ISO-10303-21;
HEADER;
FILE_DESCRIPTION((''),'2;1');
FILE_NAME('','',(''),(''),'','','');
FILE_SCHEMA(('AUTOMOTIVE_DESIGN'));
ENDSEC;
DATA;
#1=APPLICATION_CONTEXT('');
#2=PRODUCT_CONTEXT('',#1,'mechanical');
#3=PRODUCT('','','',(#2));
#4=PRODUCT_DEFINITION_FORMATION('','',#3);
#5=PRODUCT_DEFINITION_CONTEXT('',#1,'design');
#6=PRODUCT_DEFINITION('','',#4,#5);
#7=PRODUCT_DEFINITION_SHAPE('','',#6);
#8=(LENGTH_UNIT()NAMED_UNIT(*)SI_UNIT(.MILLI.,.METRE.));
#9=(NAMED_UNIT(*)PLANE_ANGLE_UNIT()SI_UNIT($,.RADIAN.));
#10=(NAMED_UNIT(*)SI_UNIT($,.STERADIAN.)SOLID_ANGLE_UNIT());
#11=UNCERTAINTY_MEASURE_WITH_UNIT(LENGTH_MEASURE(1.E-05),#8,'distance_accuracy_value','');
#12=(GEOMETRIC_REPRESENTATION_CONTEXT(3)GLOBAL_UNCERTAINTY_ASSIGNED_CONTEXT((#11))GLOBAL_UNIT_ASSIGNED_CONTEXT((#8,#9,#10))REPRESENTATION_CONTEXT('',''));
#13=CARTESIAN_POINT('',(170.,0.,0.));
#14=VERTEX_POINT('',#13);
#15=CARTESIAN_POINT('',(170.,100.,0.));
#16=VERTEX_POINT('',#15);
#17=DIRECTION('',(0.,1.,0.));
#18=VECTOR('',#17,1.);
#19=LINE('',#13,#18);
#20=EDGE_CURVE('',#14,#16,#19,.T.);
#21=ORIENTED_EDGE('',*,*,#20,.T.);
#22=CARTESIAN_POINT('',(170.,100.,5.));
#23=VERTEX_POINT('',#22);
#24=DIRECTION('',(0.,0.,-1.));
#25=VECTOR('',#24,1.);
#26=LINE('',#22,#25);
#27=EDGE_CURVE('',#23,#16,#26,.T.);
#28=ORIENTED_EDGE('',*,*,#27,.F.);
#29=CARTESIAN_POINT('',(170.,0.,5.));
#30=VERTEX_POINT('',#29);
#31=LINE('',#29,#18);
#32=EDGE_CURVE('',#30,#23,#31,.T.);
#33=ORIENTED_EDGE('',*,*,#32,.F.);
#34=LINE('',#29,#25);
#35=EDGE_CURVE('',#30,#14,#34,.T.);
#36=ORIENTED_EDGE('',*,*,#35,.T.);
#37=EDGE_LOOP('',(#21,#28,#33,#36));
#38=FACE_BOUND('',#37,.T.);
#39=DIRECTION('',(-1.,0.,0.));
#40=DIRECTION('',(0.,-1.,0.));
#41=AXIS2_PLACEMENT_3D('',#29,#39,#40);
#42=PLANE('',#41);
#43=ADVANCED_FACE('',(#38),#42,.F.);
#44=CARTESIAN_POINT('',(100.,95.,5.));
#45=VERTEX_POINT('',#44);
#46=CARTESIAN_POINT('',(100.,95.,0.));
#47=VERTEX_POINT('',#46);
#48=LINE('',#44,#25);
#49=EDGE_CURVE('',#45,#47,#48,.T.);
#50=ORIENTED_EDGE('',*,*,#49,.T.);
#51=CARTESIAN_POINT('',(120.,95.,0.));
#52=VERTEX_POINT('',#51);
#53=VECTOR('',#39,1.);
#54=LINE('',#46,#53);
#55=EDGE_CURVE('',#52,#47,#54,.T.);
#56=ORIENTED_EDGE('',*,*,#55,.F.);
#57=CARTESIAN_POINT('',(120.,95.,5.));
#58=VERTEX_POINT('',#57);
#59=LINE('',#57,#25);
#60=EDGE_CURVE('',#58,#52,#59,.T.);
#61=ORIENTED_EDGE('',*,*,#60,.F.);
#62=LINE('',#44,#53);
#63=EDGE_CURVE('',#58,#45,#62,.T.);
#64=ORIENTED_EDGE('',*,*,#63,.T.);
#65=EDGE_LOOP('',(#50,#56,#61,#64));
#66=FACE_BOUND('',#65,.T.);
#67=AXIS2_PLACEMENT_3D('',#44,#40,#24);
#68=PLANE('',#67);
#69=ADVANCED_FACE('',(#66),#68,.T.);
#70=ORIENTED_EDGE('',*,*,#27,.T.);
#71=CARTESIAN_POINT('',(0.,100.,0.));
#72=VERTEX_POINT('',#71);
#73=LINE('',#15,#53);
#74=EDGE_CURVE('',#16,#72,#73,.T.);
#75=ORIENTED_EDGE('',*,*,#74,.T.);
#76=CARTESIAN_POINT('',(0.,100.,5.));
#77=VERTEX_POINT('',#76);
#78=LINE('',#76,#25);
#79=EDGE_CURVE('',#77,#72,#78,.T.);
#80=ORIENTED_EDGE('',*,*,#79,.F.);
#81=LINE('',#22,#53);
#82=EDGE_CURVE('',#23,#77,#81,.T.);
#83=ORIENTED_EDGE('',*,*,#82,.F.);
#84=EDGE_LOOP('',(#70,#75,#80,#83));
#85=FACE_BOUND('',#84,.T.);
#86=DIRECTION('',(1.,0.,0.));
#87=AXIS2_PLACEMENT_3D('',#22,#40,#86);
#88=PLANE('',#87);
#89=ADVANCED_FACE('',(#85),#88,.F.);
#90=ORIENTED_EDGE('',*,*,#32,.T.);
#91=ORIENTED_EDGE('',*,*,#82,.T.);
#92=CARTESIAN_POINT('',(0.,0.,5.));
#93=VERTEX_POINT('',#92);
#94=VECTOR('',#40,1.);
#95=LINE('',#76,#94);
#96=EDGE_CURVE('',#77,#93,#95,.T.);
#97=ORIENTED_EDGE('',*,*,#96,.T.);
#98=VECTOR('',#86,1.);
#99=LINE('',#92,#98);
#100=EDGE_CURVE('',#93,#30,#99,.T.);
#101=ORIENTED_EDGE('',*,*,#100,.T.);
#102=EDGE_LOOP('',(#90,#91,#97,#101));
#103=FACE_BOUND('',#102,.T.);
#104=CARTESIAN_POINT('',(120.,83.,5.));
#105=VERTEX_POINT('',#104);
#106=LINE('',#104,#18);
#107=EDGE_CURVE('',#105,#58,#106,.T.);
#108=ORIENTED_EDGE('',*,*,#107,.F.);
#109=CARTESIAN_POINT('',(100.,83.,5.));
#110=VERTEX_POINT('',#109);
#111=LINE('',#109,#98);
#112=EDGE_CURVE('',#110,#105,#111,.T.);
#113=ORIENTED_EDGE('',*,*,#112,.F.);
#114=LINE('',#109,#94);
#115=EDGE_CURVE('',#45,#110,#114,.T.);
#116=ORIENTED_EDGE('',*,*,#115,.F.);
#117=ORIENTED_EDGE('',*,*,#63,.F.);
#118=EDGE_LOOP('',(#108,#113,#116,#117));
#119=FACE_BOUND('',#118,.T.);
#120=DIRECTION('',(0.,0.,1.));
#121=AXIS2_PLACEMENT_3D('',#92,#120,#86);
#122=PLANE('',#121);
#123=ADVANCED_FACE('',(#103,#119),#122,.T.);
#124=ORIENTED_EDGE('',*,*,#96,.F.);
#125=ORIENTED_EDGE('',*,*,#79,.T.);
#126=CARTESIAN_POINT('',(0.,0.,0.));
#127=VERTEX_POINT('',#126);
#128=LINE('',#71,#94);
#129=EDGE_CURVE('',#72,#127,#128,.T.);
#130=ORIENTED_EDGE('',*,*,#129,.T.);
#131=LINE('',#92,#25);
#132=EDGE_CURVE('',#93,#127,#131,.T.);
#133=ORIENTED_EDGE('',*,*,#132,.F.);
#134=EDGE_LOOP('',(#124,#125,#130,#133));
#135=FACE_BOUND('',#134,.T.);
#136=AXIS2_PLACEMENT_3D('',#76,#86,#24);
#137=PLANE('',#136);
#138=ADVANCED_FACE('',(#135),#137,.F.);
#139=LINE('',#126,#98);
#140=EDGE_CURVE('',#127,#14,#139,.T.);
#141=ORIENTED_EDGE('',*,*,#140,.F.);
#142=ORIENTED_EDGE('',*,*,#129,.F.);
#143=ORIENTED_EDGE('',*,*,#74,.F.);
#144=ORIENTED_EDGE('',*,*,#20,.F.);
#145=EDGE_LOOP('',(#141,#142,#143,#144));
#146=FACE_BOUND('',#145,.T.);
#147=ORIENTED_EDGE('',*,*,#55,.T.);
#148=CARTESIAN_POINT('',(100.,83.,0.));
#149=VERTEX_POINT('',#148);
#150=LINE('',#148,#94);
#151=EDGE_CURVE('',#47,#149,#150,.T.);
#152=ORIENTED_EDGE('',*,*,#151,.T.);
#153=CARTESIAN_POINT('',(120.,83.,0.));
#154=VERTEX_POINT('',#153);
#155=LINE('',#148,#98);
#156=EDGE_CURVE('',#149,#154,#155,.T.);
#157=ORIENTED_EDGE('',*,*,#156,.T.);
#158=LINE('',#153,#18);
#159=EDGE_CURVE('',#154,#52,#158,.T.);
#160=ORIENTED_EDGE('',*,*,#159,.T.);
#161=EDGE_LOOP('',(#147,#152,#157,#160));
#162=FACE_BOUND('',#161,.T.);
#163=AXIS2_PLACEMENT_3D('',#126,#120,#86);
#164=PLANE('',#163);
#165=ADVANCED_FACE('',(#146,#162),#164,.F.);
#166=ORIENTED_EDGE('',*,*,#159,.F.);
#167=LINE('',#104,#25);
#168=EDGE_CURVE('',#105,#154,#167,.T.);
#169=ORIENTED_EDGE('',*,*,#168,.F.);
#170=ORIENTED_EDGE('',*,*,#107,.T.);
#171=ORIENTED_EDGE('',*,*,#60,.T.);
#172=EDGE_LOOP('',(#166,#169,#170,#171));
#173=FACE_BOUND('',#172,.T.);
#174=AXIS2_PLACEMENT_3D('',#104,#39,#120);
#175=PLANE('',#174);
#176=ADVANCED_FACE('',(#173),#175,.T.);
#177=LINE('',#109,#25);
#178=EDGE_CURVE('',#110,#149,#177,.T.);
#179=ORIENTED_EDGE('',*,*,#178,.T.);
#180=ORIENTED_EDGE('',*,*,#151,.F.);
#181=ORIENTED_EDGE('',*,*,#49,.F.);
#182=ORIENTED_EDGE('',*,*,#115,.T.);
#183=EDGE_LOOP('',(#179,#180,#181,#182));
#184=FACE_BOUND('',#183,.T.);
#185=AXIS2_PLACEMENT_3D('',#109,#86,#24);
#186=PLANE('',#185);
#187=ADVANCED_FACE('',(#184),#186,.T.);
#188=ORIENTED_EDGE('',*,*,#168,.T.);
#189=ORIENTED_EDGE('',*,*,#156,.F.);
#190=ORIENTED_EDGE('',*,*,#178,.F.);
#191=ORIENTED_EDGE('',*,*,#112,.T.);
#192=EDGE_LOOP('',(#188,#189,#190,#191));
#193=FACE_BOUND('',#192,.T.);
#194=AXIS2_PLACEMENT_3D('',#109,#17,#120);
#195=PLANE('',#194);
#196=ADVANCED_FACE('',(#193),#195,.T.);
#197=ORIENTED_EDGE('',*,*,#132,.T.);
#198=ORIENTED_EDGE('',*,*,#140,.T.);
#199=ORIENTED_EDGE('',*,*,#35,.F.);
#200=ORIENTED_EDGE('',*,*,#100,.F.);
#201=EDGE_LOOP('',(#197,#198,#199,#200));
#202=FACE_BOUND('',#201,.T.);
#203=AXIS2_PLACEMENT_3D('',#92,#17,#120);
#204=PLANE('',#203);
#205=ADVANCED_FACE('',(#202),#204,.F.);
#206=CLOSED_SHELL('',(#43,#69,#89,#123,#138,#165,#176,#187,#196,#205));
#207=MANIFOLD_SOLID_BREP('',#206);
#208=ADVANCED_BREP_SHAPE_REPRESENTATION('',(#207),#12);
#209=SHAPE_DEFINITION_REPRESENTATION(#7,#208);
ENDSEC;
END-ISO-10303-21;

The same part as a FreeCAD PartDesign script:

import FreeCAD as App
import Part
import Sketcher

doc = App.newDocument("Part")
body = doc.addObject("PartDesign::Body", "Body")

sketch1 = body.newObject("Sketcher::SketchObject", "Sketch")
sketch1.AttachmentSupport = (doc.getObject("XY_Plane"), [""])
sketch1.MapMode = "FlatFace"
sketch1.addGeometry([
    Part.LineSegment(App.Vector(0, 100, 0), App.Vector(0, 0, 0)),
    Part.LineSegment(App.Vector(0, 0, 0), App.Vector(170, 0, 0)),
    Part.LineSegment(App.Vector(170, 0, 0), App.Vector(170, 100, 0)),
    Part.LineSegment(App.Vector(170, 100, 0), App.Vector(0, 100, 0)),
    Part.LineSegment(App.Vector(120, 83, 0), App.Vector(100, 83, 0)),
    Part.LineSegment(App.Vector(100, 83, 0), App.Vector(100, 95, 0)),
    Part.LineSegment(App.Vector(100, 95, 0), App.Vector(120, 95, 0)),
    Part.LineSegment(App.Vector(120, 95, 0), App.Vector(120, 83, 0)),
], False)
sketch1.addConstraint([
    Sketcher.Constraint("Coincident", 0, 2, 1, 1),
    Sketcher.Constraint("Coincident", 1, 2, 2, 1),
    Sketcher.Constraint("Coincident", 2, 2, 3, 1),
    Sketcher.Constraint("Coincident", 3, 2, 0, 1),
    Sketcher.Constraint("Coincident", 4, 2, 5, 1),
    Sketcher.Constraint("Coincident", 5, 2, 6, 1),
    Sketcher.Constraint("Coincident", 6, 2, 7, 1),
    Sketcher.Constraint("Coincident", 7, 2, 4, 1),
    Sketcher.Constraint("Vertical", 0),
    Sketcher.Constraint("Horizontal", 1),
    Sketcher.Constraint("Vertical", 2),
    Sketcher.Constraint("Horizontal", 3),
    Sketcher.Constraint("Horizontal", 4),
    Sketcher.Constraint("Vertical", 5),
    Sketcher.Constraint("Horizontal", 6),
    Sketcher.Constraint("Vertical", 7),
    Sketcher.Constraint("Coincident", 0, 2, -1, 1),
    Sketcher.Constraint("DistanceX", 1, 1, 1, 2, 170.0),
    Sketcher.Constraint("DistanceX", 4, 2, 4, 1, 20.0),
    Sketcher.Constraint("DistanceY", 0, 2, 0, 1, 100.0),
    Sketcher.Constraint("DistanceY", 5, 1, 5, 2, 12.0),
    Sketcher.Constraint("DistanceX", -1, 1, 4, 2, 100.0),
    Sketcher.Constraint("DistanceY", -1, 1, 4, 2, 83.0),
])
pad1 = body.newObject("PartDesign::Pad", "Pad")
pad1.Profile = sketch1
pad1.Length = 5

doc.recompute()
